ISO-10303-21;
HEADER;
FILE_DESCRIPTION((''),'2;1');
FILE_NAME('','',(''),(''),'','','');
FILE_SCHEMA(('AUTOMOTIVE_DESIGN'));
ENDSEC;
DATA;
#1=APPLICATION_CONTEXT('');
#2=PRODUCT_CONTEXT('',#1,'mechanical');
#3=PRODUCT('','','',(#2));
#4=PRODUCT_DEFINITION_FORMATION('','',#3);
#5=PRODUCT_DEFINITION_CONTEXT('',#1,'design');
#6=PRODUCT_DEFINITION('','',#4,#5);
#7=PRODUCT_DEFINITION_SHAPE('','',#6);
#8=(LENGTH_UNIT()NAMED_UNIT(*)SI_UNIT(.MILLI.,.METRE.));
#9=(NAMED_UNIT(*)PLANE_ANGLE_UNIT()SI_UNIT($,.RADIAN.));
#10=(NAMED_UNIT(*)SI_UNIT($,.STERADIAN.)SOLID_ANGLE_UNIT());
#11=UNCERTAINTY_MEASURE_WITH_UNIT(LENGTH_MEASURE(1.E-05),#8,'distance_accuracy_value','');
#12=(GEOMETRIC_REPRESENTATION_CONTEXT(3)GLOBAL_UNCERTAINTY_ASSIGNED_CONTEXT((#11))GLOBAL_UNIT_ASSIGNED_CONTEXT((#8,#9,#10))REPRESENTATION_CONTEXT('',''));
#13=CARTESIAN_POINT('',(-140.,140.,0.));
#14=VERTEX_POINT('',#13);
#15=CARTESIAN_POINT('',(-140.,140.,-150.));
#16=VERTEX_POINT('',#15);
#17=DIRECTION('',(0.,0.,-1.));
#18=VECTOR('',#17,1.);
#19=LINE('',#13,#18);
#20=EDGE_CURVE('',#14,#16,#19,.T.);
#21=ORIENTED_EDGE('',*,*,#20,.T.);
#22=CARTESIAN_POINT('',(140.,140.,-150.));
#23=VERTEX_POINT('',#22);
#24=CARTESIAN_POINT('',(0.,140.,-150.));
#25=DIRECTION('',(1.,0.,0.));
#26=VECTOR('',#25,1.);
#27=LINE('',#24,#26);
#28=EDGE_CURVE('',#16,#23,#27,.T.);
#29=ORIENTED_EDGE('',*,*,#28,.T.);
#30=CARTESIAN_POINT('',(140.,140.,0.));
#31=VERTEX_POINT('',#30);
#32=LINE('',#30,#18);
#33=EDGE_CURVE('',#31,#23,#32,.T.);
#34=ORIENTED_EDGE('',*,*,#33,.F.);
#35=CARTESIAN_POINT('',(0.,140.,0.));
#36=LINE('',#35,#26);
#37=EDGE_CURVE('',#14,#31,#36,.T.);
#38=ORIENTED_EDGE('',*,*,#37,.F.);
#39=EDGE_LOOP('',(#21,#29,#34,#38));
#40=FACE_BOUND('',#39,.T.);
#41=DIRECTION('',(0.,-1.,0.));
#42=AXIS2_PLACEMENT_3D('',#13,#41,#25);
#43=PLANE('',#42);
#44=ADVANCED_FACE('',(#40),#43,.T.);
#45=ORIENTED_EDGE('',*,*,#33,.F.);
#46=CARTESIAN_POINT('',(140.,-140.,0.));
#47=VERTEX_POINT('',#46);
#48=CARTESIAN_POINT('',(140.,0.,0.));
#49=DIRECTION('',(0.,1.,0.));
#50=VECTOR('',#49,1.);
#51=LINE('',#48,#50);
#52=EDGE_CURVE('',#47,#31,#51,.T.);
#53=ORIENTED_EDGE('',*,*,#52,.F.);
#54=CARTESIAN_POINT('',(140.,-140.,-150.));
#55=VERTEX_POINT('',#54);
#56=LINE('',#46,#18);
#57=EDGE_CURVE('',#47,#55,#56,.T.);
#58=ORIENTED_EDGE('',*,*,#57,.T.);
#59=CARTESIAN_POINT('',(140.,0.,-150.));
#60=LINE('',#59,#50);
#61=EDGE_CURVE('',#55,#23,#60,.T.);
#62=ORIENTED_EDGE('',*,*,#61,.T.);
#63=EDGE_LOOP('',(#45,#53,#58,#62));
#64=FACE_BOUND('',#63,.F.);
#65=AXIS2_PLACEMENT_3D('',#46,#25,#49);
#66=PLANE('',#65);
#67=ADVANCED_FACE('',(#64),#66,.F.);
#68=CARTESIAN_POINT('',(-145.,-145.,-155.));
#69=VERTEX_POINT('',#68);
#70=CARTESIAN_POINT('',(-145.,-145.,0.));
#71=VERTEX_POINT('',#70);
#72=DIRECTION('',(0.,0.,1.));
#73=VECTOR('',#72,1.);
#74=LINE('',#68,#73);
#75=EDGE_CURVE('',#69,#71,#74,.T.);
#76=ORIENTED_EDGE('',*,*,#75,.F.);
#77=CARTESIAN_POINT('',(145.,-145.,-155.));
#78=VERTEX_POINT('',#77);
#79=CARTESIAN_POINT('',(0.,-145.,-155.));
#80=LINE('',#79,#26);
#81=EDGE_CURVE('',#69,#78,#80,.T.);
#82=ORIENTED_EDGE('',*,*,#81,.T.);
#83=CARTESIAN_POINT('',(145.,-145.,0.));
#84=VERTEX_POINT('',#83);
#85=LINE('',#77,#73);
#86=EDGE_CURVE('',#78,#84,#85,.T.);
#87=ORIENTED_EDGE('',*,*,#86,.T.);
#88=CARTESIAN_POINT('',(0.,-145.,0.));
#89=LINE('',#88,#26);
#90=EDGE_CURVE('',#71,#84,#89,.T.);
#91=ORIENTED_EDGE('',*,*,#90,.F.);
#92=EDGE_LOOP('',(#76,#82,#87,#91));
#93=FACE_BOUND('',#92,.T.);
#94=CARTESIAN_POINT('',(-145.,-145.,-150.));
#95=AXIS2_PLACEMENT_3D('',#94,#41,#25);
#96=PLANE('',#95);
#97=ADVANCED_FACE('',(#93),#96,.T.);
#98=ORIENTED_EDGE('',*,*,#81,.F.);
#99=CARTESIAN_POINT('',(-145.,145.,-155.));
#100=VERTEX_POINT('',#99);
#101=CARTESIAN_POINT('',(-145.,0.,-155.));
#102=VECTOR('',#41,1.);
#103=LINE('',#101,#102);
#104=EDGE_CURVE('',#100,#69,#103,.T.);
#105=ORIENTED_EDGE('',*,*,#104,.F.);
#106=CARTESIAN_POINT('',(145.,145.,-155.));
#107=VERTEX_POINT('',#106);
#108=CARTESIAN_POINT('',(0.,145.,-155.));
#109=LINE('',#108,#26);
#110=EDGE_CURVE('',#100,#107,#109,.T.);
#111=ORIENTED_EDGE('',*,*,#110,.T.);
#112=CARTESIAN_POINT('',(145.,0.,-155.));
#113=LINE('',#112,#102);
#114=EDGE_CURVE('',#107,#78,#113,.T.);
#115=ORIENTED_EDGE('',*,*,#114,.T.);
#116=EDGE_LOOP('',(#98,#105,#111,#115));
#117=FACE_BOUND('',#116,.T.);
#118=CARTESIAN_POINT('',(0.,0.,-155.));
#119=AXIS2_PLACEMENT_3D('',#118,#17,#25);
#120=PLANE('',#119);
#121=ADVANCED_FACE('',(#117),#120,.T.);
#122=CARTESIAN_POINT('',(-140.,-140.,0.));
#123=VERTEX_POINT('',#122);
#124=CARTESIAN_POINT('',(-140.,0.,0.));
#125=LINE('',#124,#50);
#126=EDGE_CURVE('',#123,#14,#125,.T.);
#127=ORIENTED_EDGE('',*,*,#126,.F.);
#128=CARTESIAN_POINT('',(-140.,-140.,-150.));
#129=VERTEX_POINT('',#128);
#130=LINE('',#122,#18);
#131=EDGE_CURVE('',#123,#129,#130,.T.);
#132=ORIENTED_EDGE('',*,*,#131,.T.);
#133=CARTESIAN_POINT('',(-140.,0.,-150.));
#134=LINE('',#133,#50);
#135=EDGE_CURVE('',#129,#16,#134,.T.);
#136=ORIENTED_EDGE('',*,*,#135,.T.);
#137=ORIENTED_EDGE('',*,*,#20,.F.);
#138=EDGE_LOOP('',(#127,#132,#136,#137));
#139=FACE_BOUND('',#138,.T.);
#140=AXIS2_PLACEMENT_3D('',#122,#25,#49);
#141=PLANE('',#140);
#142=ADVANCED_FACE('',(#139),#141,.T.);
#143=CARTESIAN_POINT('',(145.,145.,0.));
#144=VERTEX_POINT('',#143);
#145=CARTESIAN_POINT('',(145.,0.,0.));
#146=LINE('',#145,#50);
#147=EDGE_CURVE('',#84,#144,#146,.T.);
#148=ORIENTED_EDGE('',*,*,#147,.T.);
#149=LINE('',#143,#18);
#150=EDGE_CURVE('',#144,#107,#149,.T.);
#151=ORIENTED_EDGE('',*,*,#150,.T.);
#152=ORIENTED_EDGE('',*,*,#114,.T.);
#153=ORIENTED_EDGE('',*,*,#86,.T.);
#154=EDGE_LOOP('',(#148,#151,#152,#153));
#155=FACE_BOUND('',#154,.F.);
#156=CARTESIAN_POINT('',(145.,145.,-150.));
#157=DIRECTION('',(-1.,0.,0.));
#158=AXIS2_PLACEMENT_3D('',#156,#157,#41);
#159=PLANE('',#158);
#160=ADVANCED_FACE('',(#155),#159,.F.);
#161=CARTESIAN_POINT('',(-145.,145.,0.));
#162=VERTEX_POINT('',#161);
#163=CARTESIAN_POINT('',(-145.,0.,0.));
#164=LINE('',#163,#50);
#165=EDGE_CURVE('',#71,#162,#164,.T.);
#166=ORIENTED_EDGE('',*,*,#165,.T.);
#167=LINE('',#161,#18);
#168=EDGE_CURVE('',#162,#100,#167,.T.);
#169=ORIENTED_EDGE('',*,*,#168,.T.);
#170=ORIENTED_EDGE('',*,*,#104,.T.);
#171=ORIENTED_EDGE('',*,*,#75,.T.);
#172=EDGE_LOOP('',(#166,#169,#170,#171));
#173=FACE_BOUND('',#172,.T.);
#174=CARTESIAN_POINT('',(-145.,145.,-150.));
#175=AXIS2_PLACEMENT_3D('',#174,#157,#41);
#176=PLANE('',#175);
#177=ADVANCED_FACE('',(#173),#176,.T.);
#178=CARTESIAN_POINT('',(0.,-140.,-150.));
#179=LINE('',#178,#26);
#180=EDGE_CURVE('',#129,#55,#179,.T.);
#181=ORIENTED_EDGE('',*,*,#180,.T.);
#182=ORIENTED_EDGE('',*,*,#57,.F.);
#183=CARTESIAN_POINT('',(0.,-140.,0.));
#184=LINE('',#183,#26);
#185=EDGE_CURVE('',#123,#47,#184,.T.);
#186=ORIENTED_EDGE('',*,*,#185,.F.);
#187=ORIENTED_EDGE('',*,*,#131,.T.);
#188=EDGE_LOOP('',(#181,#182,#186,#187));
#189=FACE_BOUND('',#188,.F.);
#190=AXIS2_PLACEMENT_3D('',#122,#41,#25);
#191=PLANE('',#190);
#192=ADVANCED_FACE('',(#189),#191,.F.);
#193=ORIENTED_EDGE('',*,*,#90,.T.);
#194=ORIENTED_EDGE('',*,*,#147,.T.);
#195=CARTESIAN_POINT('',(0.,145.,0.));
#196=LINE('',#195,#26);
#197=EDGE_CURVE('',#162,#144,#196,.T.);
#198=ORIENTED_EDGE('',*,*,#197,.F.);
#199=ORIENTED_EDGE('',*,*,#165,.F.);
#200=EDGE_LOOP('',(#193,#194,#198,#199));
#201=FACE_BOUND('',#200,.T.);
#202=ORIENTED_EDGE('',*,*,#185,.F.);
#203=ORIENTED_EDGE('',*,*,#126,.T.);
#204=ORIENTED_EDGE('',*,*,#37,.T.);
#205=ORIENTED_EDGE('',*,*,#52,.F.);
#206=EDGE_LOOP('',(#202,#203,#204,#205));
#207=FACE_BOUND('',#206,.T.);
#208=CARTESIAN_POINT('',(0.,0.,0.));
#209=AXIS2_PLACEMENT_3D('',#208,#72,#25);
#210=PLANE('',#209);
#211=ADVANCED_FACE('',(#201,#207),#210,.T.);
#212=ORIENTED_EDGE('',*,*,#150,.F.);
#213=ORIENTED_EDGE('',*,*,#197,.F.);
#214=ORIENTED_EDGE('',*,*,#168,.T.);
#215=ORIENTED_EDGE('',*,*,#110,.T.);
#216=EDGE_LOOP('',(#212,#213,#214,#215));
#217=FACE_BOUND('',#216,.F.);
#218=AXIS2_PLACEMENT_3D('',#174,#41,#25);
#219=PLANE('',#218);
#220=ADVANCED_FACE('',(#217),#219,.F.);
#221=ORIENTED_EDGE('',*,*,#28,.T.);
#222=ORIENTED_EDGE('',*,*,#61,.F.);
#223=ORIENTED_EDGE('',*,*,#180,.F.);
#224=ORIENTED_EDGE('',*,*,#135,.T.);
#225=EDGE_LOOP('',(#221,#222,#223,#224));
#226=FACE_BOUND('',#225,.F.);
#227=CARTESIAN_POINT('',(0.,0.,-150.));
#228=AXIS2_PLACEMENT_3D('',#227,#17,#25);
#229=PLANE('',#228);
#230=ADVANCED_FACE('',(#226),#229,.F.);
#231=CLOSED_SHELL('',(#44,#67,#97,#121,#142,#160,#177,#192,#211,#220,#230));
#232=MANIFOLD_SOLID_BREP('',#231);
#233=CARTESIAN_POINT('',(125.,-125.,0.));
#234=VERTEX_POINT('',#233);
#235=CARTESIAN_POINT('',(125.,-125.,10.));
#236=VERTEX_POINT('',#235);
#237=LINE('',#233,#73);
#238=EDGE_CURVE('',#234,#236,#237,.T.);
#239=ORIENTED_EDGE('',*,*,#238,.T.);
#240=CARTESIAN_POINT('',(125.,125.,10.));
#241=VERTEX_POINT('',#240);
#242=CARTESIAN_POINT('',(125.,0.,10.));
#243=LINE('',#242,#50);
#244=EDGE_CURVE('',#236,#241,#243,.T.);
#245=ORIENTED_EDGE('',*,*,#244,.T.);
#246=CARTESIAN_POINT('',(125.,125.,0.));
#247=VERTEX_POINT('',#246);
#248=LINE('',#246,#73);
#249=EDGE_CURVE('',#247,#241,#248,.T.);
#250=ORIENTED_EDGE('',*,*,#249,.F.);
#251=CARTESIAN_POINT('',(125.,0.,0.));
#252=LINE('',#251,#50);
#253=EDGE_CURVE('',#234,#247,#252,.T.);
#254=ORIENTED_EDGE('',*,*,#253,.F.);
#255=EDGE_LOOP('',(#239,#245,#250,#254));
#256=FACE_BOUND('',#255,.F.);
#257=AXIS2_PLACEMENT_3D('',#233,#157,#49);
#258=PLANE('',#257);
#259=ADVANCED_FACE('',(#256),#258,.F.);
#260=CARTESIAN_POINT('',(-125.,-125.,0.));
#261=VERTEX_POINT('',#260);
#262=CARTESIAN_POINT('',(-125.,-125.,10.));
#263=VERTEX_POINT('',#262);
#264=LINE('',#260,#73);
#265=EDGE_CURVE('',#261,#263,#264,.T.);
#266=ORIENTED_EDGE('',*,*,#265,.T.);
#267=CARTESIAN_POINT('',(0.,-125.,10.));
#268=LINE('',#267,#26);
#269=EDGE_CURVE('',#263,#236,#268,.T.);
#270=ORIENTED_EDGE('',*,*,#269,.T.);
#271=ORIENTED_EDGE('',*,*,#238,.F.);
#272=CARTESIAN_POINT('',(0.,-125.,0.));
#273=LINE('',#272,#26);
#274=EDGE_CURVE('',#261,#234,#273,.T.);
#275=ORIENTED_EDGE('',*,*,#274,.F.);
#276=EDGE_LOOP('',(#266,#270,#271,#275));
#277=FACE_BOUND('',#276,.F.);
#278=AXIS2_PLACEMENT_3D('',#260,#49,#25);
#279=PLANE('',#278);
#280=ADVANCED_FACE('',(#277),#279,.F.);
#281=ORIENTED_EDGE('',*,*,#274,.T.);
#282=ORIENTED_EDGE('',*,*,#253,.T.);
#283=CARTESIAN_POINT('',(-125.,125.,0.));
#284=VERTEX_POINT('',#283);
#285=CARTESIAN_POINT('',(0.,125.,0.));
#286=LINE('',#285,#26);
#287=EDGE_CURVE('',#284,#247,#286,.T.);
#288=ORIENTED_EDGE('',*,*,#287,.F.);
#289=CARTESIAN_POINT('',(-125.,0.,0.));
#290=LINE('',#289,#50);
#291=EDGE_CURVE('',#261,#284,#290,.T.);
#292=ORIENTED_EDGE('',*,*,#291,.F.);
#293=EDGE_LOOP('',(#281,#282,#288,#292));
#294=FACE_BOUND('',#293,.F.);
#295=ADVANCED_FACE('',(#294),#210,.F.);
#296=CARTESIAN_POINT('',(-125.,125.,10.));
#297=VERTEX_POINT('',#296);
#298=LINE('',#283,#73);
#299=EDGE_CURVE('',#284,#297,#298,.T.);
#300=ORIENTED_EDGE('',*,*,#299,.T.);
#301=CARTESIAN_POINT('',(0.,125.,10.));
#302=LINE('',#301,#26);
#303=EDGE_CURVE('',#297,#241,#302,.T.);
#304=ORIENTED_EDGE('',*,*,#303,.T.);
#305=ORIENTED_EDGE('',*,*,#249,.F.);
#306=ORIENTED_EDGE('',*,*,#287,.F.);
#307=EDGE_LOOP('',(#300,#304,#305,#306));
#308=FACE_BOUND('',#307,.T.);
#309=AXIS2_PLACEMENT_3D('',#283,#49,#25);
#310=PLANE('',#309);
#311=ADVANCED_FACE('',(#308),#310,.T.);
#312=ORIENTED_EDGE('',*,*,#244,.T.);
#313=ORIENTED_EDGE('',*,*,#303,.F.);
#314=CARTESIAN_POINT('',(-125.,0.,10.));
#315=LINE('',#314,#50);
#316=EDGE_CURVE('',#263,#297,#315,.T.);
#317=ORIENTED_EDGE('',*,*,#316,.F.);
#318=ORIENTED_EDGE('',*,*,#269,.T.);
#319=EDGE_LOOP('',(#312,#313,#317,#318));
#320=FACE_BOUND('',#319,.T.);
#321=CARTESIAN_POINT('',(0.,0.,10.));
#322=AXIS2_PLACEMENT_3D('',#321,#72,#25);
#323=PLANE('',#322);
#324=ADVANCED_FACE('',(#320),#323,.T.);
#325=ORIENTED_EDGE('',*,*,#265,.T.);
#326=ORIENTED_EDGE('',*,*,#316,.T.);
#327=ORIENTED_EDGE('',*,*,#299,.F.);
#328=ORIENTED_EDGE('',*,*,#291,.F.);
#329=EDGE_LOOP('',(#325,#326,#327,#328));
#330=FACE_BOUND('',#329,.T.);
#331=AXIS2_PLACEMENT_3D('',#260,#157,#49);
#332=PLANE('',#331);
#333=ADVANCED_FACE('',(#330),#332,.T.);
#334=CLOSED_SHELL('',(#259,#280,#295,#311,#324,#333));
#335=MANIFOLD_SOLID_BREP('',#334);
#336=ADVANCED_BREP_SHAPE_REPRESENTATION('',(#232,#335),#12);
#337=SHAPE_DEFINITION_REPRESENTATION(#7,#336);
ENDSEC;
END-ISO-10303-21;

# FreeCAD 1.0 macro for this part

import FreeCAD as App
import Part
import Sketcher


def add_polygon(sketch, points):
    """Adds a closed chain of lines whose ends are joined by coincident constraints."""
    first, n = sketch.GeometryCount, len(points)
    for a, b in zip(points, points[1:] + points[:1]):
        sketch.addGeometry(Part.LineSegment(App.Vector(*a, 0), App.Vector(*b, 0)), False)
    for i in range(n):
        sketch.addConstraint(Sketcher.Constraint("Coincident", first + i, 2, first + (i + 1) % n, 1))

doc = App.newDocument("Part")
body = doc.addObject("PartDesign::Body", "Body")

# Sketch on XY plane
sketch1 = body.newObject("Sketcher::SketchObject", "Sketch")
sketch1.AttachmentSupport = (doc.getObject("XY_Plane"), [""])
sketch1.MapMode = "FlatFace"
add_polygon(sketch1, [(-125, 125), (-125, -125), (125, -125), (125, 125)])  # lines 0-3
sketch1.addConstraint([
    Sketcher.Constraint("Vertical", 0),
    Sketcher.Constraint("Horizontal", 1),
    Sketcher.Constraint("Vertical", 2),
    Sketcher.Constraint("Horizontal", 3),
    Sketcher.Constraint("Symmetric", 0, 2, 2, 2, -1, 1),
    Sketcher.Constraint("Equal", 3, 0),
    Sketcher.Constraint("DistanceX", 1, 1, 1, 2, 250.0),
])
pad1 = body.newObject("PartDesign::Pad", "Pad")
pad1.Profile = sketch1
pad1.Length = 10
body2 = doc.addObject("PartDesign::Body", "Body001")

# Sketch on XY plane
sketch2 = body2.newObject("Sketcher::SketchObject", "Sketch001")
sketch2.AttachmentSupport = (doc.getObject("XY_Plane001"), [""])
sketch2.MapMode = "FlatFace"
add_polygon(sketch2, [(-145, 145), (-145, -145), (145, -145), (145, 145)])  # lines 0-3
add_polygon(sketch2, [(140, -140), (-140, -140), (-140, 140), (140, 140)])  # lines 4-7
sketch2.addConstraint([
    Sketcher.Constraint("Vertical", 0),
    Sketcher.Constraint("Horizontal", 1),
    Sketcher.Constraint("Vertical", 2),
    Sketcher.Constraint("Horizontal", 3),
    Sketcher.Constraint("Horizontal", 4),
    Sketcher.Constraint("Vertical", 5),
    Sketcher.Constraint("Horizontal", 6),
    Sketcher.Constraint("Vertical", 7),
    Sketcher.Constraint("Symmetric", 0, 2, 2, 2, -1, 1),
    Sketcher.Constraint("Symmetric", 4, 2, 6, 2, -1, 1),
    Sketcher.Constraint("Equal", 3, 0),
    Sketcher.Constraint("Equal", 6, 5),
    Sketcher.Constraint("DistanceX", 1, 1, 1, 2, 290.0),
    Sketcher.Constraint("DistanceX", 4, 2, 4, 1, 280.0),
])
pad2 = body2.newObject("PartDesign::Pad", "Pad001")
pad2.Profile = sketch2
pad2.Length = 150
pad2.Reversed = True

# Sketch on XY plane
sketch3 = body2.newObject("Sketcher::SketchObject", "Sketch002")
sketch3.AttachmentSupport = (doc.getObject("XY_Plane001"), [""])
sketch3.MapMode = "FlatFace"
sketch3.AttachmentOffset = App.Placement(App.Vector(0, 0, -150), App.Rotation())
add_polygon(sketch3, [(-145, -145), (-145, 145), (145, 145), (145, -145)])  # lines 0-3
sketch3.addConstraint([
    Sketcher.Constraint("Vertical", 0),
    Sketcher.Constraint("Horizontal", 1),
    Sketcher.Constraint("Vertical", 2),
    Sketcher.Constraint("Horizontal", 3),
    Sketcher.Constraint("Symmetric", 0, 2, 2, 2, -1, 1),
    Sketcher.Constraint("Equal", 3, 0),
    Sketcher.Constraint("DistanceX", 1, 1, 1, 2, 290.0),
])
pad3 = body2.newObject("PartDesign::Pad", "Pad002")
pad3.Profile = sketch3
pad3.Length = 5
pad3.Reversed = True

doc.recompute()
